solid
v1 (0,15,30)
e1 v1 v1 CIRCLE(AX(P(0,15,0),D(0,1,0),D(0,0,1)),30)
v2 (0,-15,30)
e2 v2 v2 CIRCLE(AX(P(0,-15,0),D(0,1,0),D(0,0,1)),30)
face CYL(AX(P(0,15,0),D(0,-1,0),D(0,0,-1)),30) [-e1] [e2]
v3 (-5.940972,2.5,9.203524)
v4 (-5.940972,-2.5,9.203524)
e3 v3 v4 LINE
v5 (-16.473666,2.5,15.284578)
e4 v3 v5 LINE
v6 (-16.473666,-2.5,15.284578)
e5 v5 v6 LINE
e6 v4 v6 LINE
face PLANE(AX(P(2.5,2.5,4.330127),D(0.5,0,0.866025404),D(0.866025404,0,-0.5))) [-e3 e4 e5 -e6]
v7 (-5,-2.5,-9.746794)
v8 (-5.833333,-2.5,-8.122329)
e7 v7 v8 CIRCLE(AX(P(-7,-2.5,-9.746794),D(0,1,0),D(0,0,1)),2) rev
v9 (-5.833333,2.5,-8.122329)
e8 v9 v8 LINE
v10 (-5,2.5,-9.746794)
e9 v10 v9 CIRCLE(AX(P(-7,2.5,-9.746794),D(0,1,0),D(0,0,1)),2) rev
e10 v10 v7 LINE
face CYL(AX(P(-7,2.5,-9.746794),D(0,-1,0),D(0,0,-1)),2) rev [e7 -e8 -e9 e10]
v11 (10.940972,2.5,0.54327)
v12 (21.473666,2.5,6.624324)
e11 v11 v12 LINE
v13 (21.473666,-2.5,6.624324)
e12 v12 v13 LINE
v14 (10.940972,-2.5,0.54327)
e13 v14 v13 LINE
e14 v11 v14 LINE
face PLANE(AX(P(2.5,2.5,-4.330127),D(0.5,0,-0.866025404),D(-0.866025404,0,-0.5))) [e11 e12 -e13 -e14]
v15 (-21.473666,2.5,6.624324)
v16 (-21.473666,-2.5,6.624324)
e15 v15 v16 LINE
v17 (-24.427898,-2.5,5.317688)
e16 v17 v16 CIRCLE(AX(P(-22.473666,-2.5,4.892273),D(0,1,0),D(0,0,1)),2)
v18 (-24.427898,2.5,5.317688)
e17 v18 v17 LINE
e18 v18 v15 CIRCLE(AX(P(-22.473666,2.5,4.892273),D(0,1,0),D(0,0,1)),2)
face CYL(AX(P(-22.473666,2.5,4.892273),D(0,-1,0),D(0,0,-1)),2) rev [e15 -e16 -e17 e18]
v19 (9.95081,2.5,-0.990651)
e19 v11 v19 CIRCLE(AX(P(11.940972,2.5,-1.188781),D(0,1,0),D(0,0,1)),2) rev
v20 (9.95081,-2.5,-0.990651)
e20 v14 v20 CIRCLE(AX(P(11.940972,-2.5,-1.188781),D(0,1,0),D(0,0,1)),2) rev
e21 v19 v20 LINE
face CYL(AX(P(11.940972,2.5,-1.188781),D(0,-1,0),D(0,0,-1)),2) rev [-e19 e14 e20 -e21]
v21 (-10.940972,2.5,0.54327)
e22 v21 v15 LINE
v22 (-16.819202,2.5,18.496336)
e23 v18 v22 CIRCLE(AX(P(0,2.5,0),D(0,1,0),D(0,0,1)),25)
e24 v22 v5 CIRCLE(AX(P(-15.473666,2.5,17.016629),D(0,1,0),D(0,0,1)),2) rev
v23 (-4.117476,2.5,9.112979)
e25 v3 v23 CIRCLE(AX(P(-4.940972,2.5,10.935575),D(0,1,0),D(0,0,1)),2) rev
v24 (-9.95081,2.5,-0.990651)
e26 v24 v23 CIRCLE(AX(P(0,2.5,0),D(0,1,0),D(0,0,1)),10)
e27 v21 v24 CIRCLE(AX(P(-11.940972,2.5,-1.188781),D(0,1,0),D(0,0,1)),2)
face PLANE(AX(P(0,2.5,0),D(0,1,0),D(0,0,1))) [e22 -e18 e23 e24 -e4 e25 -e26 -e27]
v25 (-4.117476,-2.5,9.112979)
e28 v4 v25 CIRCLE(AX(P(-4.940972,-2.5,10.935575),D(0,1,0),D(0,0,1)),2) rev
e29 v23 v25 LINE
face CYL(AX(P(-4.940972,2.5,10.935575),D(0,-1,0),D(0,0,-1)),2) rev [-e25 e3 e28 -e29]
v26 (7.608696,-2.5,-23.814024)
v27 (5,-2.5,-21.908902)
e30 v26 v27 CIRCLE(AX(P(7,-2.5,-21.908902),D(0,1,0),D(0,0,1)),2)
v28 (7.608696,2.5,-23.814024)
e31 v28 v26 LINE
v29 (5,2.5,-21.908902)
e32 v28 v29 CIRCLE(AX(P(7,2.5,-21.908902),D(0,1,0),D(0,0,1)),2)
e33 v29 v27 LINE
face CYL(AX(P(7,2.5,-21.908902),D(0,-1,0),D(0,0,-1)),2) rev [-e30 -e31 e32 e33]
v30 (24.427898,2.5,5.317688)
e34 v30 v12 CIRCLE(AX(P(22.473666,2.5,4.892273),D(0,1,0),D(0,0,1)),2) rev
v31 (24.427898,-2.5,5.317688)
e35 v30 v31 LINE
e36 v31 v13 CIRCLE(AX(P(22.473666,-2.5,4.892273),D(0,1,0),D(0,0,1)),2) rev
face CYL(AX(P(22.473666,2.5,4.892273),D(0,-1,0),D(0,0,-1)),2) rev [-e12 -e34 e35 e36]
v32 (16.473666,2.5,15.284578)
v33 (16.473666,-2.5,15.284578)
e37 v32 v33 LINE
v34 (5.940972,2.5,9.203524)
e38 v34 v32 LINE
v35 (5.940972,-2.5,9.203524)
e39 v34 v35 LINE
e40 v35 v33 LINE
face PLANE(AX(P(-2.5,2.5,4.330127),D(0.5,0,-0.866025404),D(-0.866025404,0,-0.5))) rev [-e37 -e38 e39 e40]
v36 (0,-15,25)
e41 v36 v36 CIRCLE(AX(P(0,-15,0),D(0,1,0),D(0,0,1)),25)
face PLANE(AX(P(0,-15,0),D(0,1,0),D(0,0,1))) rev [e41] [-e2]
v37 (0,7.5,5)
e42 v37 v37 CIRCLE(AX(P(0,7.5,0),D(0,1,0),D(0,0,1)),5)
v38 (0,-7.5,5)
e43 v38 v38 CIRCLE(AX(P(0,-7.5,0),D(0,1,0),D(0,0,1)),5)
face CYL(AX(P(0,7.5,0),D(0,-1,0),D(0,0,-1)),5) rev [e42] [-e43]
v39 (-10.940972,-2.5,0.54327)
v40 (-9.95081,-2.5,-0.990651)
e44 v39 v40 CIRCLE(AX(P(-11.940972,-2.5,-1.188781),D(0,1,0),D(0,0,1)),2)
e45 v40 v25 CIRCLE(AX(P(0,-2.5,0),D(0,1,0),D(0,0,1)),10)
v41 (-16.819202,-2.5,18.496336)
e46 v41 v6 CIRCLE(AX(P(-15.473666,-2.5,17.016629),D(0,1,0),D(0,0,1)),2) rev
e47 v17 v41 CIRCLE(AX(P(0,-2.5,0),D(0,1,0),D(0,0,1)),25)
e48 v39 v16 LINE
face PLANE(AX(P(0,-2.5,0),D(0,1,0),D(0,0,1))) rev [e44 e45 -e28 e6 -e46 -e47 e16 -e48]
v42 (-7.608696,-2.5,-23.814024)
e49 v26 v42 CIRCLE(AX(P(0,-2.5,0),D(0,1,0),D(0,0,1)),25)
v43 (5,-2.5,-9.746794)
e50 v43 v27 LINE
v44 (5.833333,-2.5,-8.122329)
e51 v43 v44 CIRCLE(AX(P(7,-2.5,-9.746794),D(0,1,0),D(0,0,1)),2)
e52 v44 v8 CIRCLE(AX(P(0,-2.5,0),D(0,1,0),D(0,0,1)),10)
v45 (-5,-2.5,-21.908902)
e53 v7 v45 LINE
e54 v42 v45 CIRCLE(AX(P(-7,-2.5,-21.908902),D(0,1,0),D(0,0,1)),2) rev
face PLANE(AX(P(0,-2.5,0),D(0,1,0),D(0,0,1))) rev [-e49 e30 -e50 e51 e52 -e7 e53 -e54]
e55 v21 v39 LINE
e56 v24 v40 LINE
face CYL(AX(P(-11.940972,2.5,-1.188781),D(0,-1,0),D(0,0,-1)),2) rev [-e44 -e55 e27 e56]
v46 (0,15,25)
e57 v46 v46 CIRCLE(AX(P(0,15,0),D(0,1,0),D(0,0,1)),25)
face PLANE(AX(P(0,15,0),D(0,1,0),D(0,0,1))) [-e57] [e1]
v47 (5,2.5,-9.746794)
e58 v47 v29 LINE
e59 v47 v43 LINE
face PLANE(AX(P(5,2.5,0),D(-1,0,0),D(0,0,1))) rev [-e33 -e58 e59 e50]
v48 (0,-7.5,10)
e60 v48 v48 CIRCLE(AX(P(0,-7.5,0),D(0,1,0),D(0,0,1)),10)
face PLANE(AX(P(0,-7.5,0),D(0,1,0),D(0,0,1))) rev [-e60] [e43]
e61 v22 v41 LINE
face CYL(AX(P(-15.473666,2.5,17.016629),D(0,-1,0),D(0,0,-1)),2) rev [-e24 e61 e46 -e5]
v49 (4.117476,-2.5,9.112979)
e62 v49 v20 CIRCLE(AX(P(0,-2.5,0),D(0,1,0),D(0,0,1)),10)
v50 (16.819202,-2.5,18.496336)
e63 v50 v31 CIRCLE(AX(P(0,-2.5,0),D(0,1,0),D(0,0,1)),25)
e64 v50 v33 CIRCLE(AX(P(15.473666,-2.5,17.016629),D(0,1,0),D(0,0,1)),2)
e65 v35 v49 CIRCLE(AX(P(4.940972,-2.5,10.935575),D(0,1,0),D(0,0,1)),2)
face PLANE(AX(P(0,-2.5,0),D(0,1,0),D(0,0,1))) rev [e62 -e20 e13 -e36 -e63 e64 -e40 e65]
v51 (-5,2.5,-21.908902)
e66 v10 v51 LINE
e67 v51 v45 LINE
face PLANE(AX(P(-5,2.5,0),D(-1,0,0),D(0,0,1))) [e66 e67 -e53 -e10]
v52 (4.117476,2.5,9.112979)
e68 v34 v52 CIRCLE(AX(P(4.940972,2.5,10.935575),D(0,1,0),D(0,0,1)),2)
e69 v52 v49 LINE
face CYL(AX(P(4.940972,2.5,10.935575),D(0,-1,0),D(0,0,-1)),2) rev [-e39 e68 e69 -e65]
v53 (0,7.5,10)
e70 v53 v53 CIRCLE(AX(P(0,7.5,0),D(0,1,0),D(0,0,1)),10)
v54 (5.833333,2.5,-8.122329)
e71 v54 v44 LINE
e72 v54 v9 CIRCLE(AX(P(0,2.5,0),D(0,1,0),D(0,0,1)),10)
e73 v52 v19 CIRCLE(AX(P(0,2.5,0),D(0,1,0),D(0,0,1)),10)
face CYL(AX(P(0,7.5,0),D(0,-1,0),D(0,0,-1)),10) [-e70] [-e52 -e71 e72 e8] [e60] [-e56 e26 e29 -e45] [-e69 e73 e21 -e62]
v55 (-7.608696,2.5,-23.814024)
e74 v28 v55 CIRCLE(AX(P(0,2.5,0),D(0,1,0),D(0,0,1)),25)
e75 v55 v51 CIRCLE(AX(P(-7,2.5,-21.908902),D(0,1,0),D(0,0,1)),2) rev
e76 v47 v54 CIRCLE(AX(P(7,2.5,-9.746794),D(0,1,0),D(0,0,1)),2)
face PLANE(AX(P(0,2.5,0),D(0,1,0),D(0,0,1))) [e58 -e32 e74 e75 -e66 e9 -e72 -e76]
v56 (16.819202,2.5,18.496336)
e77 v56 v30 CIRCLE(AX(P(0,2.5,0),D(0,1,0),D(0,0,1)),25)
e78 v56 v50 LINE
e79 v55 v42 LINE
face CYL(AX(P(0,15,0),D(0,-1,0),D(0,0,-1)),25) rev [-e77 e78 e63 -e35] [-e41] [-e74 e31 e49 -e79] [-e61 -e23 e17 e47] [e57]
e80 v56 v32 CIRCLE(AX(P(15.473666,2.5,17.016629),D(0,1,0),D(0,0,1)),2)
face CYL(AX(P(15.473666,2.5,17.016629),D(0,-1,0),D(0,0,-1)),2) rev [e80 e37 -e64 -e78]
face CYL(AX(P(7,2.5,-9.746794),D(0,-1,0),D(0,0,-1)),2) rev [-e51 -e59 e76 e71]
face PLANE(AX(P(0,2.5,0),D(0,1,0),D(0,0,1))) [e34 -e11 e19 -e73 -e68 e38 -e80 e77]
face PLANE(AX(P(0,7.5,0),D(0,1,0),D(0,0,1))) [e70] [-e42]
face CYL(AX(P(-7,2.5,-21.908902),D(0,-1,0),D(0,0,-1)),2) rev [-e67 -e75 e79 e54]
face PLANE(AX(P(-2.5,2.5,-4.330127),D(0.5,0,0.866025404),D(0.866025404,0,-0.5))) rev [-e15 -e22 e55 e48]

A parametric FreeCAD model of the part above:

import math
import FreeCAD as App
import Part
import Sketcher

V = App.Vector
Q = App.Units.Quantity

doc = App.newDocument("Part")
body = doc.addObject("PartDesign::Body", "Body")

sketch1 = body.newObject("Sketcher::SketchObject", "Sketch")
sketch1.AttachmentSupport = (doc.getObject("XZ_Plane"), [""])
sketch1.MapMode = "FlatFace"
sketch1.addGeometry(Part.Circle(V(0, 0, 0), V(0, 0, 1), 30), False)
sketch1.addGeometry(Part.Circle(V(0, 0, 0), V(0, 0, 1), 25), False)
sketch1.addConstraint(Sketcher.Constraint("Coincident", 0, 3, -1, 1))
sketch1.addConstraint(Sketcher.Constraint("Coincident", 1, 3, -1, 1))
sketch1.addConstraint(Sketcher.Constraint("Diameter", 0, Q("60 mm")))
sketch1.addConstraint(Sketcher.Constraint("Diameter", 1, Q("50 mm")))
pad1 = body.newObject("PartDesign::Pad", "Pad")
pad1.Profile = sketch1
pad1.Length = 30
pad1.Midplane = True
body2 = doc.addObject("PartDesign::Body", "Body001")

sketch2 = body2.newObject("Sketcher::SketchObject", "Sketch001")
sketch2.AttachmentSupport = (doc.getObject("XZ_Plane001"), [""])
sketch2.MapMode = "FlatFace"
sketch2.addGeometry(Part.Circle(V(0, 0, 0), V(0, 0, 1), 10), False)
sketch2.addGeometry(Part.Circle(V(0, 0, 0), V(0, 0, 1), 5), False)
sketch2.addConstraint(Sketcher.Constraint("Coincident", 0, 3, -1, 1))
sketch2.addConstraint(Sketcher.Constraint("Coincident", 1, 3, -1, 1))
sketch2.addConstraint(Sketcher.Constraint("Diameter", 0, Q("20 mm")))
sketch2.addConstraint(Sketcher.Constraint("Diameter", 1, Q("10 mm")))
pad2 = body2.newObject("PartDesign::Pad", "Pad001")
pad2.Profile = sketch2
pad2.Length = 15
pad2.Midplane = True
body.AllowCompound = True
doc.recompute()

boolean = body.newObject("PartDesign::Boolean", "Boolean")
boolean.Type = "Fuse"
boolean.addObjects([body2])

sketch3 = body.newObject("Sketcher::SketchObject", "Sketch002")
sketch3.AttachmentSupport = (doc.getObject("XZ_Plane"), [""])
sketch3.MapMode = "FlatFace"
sketch3.addGeometry(Part.ArcOfCircle(Part.Circle(V(0, 0, 0), V(0, 0, 1), 10), math.radians(-126), math.radians(-54)), False)
sketch3.addGeometry(Part.ArcOfCircle(Part.Circle(V(7, -9.7, 0), V(0, 0, 1), 2), math.radians(126), math.radians(180)), False)
sketch3.addGeometry(Part.LineSegment(V(5, -9.7, 0), V(5, -21.9, 0)), False)
sketch3.addGeometry(Part.ArcOfCircle(Part.Circle(V(7, -21.9, 0), V(0, 0, 1), 2), math.radians(180), math.radians(288)), False)
sketch3.addGeometry(Part.ArcOfCircle(Part.Circle(V(0, 0, 0), V(0, 0, 1), 25), math.radians(-108), math.radians(-72)), False)
sketch3.addGeometry(Part.ArcOfCircle(Part.Circle(V(-7, -21.9, 0), V(0, 0, 1), 2), math.radians(-108), math.radians(0)), False)
sketch3.addGeometry(Part.LineSegment(V(-5, -21.9, 0), V(-5, -9.7, 0)), False)
sketch3.addGeometry(Part.ArcOfCircle(Part.Circle(V(-7, -9.7, 0), V(0, 0, 1), 2), math.radians(0), math.radians(54)), False)
sketch3.addGeometry(Part.LineSegment(V(21.5, 6.6, 0), V(10.9, 0.5, 0)), False)
sketch3.addGeometry(Part.ArcOfCircle(Part.Circle(V(11.9, -1.2, 0), V(0, 0, 1), 2), math.radians(120), math.radians(174)), False)
sketch3.addGeometry(Part.ArcOfCircle(Part.Circle(V(0, 0, 0), V(0, 0, 1), 10), math.radians(-5.69), math.radians(0)), False)
sketch3.addGeometry(Part.ArcOfCircle(Part.Circle(V(0, 0, 0), V(0, 0, 1), 10), math.radians(0), math.radians(66)), False)
sketch3.addGeometry(Part.ArcOfCircle(Part.Circle(V(4.9, 10.9, 0), V(0, 0, 1), 2), math.radians(-114), math.radians(-60)), False)
sketch3.addGeometry(Part.LineSegment(V(5.9, 9.2, 0), V(16.5, 15.3, 0)), False)
sketch3.addGeometry(Part.ArcOfCircle(Part.Circle(V(15.5, 17, 0), V(0, 0, 1), 2), math.radians(-60), math.radians(48)), False)
sketch3.addGeometry(Part.ArcOfCircle(Part.Circle(V(0, 0, 0), V(0, 0, 1), 25), math.radians(12), math.radians(48)), False)
sketch3.addGeometry(Part.ArcOfCircle(Part.Circle(V(22.5, 4.9, 0), V(0, 0, 1), 2), math.radians(12), math.radians(120)), False)
sketch3.addGeometry(Part.ArcOfCircle(Part.Circle(V(0, 0, 0), V(0, 0, 1), 25), math.radians(132), math.radians(168)), False)
sketch3.addGeometry(Part.ArcOfCircle(Part.Circle(V(-15.5, 17, 0), V(0, 0, 1), 2), math.radians(132), math.radians(240)), False)
sketch3.addGeometry(Part.LineSegment(V(-16.5, 15.3, 0), V(-5.9, 9.2, 0)), False)
sketch3.addGeometry(Part.ArcOfCircle(Part.Circle(V(-4.9, 10.9, 0), V(0, 0, 1), 2), math.radians(-120), math.radians(-66)), False)
sketch3.addGeometry(Part.ArcOfCircle(Part.Circle(V(0, 0, 0), V(0, 0, 1), 10), math.radians(114), math.radians(186)), False)
sketch3.addGeometry(Part.ArcOfCircle(Part.Circle(V(-11.9, -1.2, 0), V(0, 0, 1), 2), math.radians(6), math.radians(60)), False)
sketch3.addGeometry(Part.LineSegment(V(-10.9, 0.5, 0), V(-21.5, 6.6, 0)), False)
sketch3.addGeometry(Part.ArcOfCircle(Part.Circle(V(-22.5, 4.9, 0), V(0, 0, 1), 2), math.radians(60), math.radians(168)), False)
sketch3.addConstraint(Sketcher.Constraint("Tangent", 0, 2, 1, 1))
sketch3.addConstraint(Sketcher.Constraint("Tangent", 1, 2, 2, 1))
sketch3.addConstraint(Sketcher.Constraint("Tangent", 2, 2, 3, 1))
sketch3.addConstraint(Sketcher.Constraint("Tangent", 3, 2, 4, 2))
sketch3.addConstraint(Sketcher.Constraint("Tangent", 4, 1, 5, 1))
sketch3.addConstraint(Sketcher.Constraint("Tangent", 5, 2, 6, 1))
sketch3.addConstraint(Sketcher.Constraint("Tangent", 6, 2, 7, 1))
sketch3.addConstraint(Sketcher.Constraint("Tangent", 7, 2, 0, 1))
sketch3.addConstraint(Sketcher.Constraint("Tangent", 8, 2, 9, 1))
sketch3.addConstraint(Sketcher.Constraint("Tangent", 9, 2, 10, 1))
sketch3.addConstraint(Sketcher.Constraint("Tangent", 10, 2, 11, 1))
sketch3.addConstraint(Sketcher.Constraint("Tangent", 11, 2, 12, 1))
sketch3.addConstraint(Sketcher.Constraint("Tangent", 12, 2, 13, 1))
sketch3.addConstraint(Sketcher.Constraint("Tangent", 13, 2, 14, 1))
sketch3.addConstraint(Sketcher.Constraint("Tangent", 14, 2, 15, 2))
sketch3.addConstraint(Sketcher.Constraint("Tangent", 15, 1, 16, 1))
sketch3.addConstraint(Sketcher.Constraint("Tangent", 16, 2, 8, 1))
sketch3.addConstraint(Sketcher.Constraint("Tangent", 17, 1, 18, 1))
sketch3.addConstraint(Sketcher.Constraint("Tangent", 18, 2, 19, 1))
sketch3.addConstraint(Sketcher.Constraint("Tangent", 19, 2, 20, 1))
sketch3.addConstraint(Sketcher.Constraint("Tangent", 20, 2, 21, 1))
sketch3.addConstraint(Sketcher.Constraint("Tangent", 21, 2, 22, 1))
sketch3.addConstraint(Sketcher.Constraint("Tangent", 22, 2, 23, 1))
sketch3.addConstraint(Sketcher.Constraint("Tangent", 23, 2, 24, 1))
sketch3.addConstraint(Sketcher.Constraint("Tangent", 24, 2, 17, 2))
sketch3.addConstraint(Sketcher.Constraint("Vertical", 2))
sketch3.addConstraint(Sketcher.Constraint("Vertical", 6))
sketch3.addConstraint(Sketcher.Constraint("Coincident", 0, 3, -1, 1))
sketch3.addConstraint(Sketcher.Constraint("Coincident", 4, 3, -1, 1))
sketch3.addConstraint(Sketcher.Constraint("Coincident", 10, 3, -1, 1))
sketch3.addConstraint(Sketcher.Constraint("Coincident", 15, 3, -1, 1))
sketch3.addConstraint(Sketcher.Constraint("Coincident", 17, 3, -1, 1))
sketch3.addConstraint(Sketcher.Constraint("Coincident", 21, 3, -1, 1))
sketch3.addConstraint(Sketcher.Constraint("Equal", 1, 3))
sketch3.addConstraint(Sketcher.Constraint("Equal", 3, 5))
sketch3.addConstraint(Sketcher.Constraint("Equal", 5, 7))
sketch3.addConstraint(Sketcher.Constraint("Equal", 7, 9))
sketch3.addConstraint(Sketcher.Constraint("Equal", 0, 10))
sketch3.addConstraint(Sketcher.Constraint("Equal", 10, 11))
sketch3.addConstraint(Sketcher.Constraint("Equal", 9, 12))
sketch3.addConstraint(Sketcher.Constraint("Equal", 12, 14))
sketch3.addConstraint(Sketcher.Constraint("Equal", 4, 15))
sketch3.addConstraint(Sketcher.Constraint("Equal", 14, 16))
sketch3.addConstraint(Sketcher.Constraint("Equal", 15, 17))
sketch3.addConstraint(Sketcher.Constraint("Equal", 16, 18))
sketch3.addConstraint(Sketcher.Constraint("Equal", 18, 20))
sketch3.addConstraint(Sketcher.Constraint("Equal", 11, 21))
sketch3.addConstraint(Sketcher.Constraint("Equal", 20, 22))
sketch3.addConstraint(Sketcher.Constraint("Equal", 22, 24))
sketch3.addConstraint(Sketcher.Constraint("Symmetric", 13, 2, 18, 2, -2))
sketch3.addConstraint(Sketcher.Constraint("Symmetric", 8, 2, 22, 2, -2))
sketch3.addConstraint(Sketcher.Constraint("PointOnObject", 10, 2, -1))
sketch3.addConstraint(Sketcher.Constraint("Parallel", 8, 13))
sketch3.addConstraint(Sketcher.Constraint("Horizontal", 3, 3, 5, 3))
sketch3.addConstraint(Sketcher.Constraint("Equal", 8, 13))
sketch3.addConstraint(Sketcher.Constraint("Radius", 0, Q("10 mm")))
sketch3.addConstraint(Sketcher.Constraint("Radius", 1, Q("2 mm")))
sketch3.addConstraint(Sketcher.Constraint("Radius", 4, Q("25 mm")))
sketch3.addConstraint(Sketcher.Constraint("Angle", 8, Q("-150 deg")))
sketch3.addConstraint(Sketcher.Constraint("DistanceX", -1, 1, 1, 3, Q("7 mm")))
sketch3.addConstraint(Sketcher.Constraint("DistanceX", 12, 3, 9, 3, Q("7 mm")))
pad3 = body.newObject("PartDesign::Pad", "Pad002")
pad3.Profile = sketch3
pad3.Length = 5
pad3.Midplane = True

doc.recompute()
